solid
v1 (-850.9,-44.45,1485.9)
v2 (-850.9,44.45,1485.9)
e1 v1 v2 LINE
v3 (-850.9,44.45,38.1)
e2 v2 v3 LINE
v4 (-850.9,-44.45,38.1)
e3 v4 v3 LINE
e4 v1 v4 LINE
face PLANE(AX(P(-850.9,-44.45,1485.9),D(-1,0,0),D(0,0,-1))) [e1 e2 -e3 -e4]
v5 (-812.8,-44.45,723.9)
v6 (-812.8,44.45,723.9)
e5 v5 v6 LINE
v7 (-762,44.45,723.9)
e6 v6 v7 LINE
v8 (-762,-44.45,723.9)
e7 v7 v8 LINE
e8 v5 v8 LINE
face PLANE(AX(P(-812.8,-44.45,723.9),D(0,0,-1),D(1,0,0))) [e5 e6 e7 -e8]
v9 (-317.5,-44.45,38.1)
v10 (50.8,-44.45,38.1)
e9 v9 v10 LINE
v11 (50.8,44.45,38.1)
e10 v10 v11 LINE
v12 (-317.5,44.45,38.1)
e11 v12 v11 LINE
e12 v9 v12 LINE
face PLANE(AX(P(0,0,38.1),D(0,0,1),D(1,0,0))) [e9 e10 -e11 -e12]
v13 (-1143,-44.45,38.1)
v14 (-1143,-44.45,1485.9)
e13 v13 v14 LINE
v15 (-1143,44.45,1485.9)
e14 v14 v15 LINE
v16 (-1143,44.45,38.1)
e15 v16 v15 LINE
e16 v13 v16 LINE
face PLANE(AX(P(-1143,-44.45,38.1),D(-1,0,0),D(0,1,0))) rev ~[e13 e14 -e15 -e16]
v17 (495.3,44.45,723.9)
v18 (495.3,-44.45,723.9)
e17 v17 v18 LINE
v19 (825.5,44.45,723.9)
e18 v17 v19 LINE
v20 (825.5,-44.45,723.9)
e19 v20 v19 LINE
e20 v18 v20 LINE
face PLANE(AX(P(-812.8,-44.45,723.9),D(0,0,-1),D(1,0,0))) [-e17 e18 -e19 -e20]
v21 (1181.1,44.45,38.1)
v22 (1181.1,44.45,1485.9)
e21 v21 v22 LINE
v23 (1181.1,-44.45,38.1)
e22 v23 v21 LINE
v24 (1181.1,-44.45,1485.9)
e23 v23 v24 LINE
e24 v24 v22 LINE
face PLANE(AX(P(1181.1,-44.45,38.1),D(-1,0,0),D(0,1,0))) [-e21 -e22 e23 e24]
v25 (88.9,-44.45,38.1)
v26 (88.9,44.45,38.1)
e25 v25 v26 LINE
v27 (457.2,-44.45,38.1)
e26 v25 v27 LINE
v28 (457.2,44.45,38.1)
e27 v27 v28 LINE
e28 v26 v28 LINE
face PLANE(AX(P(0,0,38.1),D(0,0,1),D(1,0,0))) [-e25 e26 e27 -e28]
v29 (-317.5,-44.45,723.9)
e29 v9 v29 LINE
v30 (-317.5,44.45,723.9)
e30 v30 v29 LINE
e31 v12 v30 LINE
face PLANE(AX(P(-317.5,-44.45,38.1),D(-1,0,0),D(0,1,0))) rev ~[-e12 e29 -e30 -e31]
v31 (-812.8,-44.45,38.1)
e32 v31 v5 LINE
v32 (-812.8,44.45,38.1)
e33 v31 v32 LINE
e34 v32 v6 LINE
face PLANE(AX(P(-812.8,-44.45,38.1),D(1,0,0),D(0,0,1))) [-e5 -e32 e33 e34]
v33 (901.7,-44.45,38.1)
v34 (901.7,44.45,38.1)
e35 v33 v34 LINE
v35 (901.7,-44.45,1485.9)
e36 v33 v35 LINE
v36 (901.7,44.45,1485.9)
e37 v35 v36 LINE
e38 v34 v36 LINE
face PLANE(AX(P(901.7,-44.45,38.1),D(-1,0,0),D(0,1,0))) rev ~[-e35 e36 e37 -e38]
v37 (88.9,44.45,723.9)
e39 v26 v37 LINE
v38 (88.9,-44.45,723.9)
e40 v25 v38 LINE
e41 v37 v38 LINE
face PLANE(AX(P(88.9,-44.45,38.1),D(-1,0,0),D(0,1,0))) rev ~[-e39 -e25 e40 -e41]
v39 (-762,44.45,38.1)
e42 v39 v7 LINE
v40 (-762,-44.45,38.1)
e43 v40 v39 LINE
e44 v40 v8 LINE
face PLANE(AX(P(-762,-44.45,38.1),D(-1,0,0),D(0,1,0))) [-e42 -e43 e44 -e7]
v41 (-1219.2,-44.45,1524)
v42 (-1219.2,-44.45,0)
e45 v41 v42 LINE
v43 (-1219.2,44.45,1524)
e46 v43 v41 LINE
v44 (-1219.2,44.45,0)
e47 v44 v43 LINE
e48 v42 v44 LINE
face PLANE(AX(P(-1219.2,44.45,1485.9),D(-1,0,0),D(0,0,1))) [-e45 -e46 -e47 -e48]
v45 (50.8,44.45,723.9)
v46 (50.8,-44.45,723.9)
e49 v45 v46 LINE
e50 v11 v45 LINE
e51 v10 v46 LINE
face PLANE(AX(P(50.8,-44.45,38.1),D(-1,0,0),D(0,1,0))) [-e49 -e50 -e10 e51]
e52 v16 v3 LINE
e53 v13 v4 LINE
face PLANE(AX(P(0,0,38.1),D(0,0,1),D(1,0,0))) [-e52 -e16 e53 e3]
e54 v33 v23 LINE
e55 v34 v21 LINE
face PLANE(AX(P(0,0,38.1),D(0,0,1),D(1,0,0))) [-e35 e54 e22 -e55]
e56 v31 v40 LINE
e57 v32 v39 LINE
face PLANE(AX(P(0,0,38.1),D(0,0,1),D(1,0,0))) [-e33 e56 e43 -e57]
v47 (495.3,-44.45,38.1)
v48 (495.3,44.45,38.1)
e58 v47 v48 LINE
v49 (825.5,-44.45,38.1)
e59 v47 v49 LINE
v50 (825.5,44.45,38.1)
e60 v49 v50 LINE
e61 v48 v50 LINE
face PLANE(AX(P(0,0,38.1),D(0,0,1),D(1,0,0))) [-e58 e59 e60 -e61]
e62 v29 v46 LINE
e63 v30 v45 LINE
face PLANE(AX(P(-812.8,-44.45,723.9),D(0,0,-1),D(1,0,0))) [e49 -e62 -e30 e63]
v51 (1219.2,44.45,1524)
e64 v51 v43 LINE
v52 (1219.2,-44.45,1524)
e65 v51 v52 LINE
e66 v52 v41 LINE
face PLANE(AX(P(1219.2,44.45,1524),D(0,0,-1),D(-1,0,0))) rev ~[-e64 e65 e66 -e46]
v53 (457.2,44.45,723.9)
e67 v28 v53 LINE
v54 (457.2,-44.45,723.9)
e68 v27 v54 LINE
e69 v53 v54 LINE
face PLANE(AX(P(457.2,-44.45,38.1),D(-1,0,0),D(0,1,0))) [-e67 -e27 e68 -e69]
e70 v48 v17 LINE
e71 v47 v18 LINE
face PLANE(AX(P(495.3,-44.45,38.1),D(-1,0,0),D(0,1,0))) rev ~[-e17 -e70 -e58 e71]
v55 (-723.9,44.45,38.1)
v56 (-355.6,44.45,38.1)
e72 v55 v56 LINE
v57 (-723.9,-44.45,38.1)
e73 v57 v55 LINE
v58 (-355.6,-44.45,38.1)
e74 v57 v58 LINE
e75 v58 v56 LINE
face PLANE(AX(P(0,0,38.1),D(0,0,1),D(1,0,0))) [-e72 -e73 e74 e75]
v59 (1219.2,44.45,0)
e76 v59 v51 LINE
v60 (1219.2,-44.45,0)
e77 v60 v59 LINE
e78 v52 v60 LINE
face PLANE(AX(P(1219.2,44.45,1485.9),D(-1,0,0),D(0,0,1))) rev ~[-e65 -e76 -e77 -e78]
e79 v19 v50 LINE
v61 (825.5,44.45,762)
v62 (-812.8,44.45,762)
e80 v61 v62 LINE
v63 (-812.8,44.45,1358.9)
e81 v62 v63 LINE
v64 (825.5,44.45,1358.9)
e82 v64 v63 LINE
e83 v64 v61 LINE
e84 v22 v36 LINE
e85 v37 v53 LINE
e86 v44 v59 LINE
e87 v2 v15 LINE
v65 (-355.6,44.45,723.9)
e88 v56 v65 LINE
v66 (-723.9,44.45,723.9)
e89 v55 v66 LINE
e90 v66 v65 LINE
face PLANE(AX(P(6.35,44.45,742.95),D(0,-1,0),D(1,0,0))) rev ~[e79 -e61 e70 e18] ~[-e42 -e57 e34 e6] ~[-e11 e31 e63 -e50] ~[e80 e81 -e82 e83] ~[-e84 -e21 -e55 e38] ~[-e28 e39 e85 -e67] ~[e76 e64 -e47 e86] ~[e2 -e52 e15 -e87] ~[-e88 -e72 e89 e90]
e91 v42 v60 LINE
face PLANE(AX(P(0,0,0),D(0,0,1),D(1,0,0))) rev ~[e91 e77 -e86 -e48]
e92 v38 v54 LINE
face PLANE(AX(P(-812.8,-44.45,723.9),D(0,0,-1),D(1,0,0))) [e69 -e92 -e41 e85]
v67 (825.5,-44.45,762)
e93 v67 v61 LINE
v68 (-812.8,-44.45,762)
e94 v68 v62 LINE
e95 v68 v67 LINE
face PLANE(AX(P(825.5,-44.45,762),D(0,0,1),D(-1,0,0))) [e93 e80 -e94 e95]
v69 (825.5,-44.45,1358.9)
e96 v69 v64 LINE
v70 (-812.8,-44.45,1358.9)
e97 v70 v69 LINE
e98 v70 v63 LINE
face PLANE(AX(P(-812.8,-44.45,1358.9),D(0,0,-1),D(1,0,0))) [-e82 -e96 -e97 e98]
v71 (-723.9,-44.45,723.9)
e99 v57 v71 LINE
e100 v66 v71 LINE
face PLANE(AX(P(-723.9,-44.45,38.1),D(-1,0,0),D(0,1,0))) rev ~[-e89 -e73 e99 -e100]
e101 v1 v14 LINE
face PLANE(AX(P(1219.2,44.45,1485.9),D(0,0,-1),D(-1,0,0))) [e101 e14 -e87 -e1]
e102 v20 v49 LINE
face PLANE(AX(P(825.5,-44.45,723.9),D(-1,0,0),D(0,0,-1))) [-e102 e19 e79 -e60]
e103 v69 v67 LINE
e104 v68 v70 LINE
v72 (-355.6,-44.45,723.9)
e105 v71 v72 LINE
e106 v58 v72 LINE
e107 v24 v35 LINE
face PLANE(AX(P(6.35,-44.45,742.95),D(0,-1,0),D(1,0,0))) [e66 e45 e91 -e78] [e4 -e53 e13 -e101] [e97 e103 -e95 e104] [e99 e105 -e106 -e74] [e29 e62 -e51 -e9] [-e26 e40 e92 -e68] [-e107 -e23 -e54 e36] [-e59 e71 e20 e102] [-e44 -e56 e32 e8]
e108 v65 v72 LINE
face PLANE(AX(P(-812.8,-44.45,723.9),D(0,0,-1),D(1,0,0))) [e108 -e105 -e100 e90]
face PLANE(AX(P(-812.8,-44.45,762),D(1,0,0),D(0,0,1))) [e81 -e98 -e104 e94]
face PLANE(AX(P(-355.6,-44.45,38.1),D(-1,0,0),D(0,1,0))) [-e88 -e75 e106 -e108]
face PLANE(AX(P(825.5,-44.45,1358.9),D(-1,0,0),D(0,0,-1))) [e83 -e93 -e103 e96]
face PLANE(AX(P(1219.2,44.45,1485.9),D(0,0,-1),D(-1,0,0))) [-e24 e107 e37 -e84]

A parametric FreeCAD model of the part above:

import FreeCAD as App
import Part
import Sketcher
from FreeCAD import Vector
Q = App.Units.Quantity

doc = App.newDocument("Part")
body = doc.addObject("PartDesign::Body", "Body")

# Sketch on XY plane
sketch1 = body.newObject("Sketcher::SketchObject", "Sketch")
sketch1.AttachmentSupport = (doc.getObject("XY_Plane"), [""])
sketch1.MapMode = "FlatFace"
sketch1.addGeometry([
    Part.LineSegment(Vector(-1219.2, 44.45, 0), Vector(-1219.2, -44.45, 0)),
    Part.LineSegment(Vector(-1219.2, -44.45, 0), Vector(1219.2, -44.45, 0)),
    Part.LineSegment(Vector(1219.2, -44.45, 0), Vector(1219.2, 44.45, 0)),
    Part.LineSegment(Vector(1219.2, 44.45, 0), Vector(-1219.2, 44.45, 0)),
], False)
sketch1.addConstraint([
    Sketcher.Constraint("Coincident", 0, 2, 1, 1),
    Sketcher.Constraint("Coincident", 1, 2, 2, 1),
    Sketcher.Constraint("Coincident", 2, 2, 3, 1),
    Sketcher.Constraint("Coincident", 3, 2, 0, 1),
    Sketcher.Constraint("Vertical", 0),
    Sketcher.Constraint("Horizontal", 1),
    Sketcher.Constraint("Vertical", 2),
    Sketcher.Constraint("Horizontal", 3),
    Sketcher.Constraint("Symmetric", 0, 2, 2, 2, -1, 1),
    Sketcher.Constraint("DistanceX", 1, 1, 1, 2, Q("96 in")),
    Sketcher.Constraint("DistanceY", 0, 2, 0, 1, Q("3.5 in")),
])
pad1 = body.newObject("PartDesign::Pad", "Pad")
pad1.Profile = sketch1
pad1.Length = Q("1.5 in")

# Sketch on XY plane
sketch2 = body.newObject("Sketcher::SketchObject", "Sketch001")
sketch2.AttachmentSupport = (doc.getObject("XY_Plane"), [""])
sketch2.MapMode = "FlatFace"
sketch2.AttachmentOffset = App.Placement(Vector(0, 0, 1.5 * 25.4), App.Rotation())
sketch2.addGeometry([
    Part.LineSegment(Vector(1181.1, 44.45, 0), Vector(1181.1, -44.45, 0)),  # 0
    Part.LineSegment(Vector(1181.1, -44.45, 0), Vector(1219.2, -44.45, 0)),  # 1
    Part.LineSegment(Vector(1219.2, -44.45, 0), Vector(1219.2, 44.45, 0)),  # 2
    Part.LineSegment(Vector(1219.2, 44.45, 0), Vector(1181.1, 44.45, 0)),  # 3
    Part.LineSegment(Vector(863.6, 44.45, 0), Vector(863.6, -44.45, 0)),  # 4
    Part.LineSegment(Vector(863.6, -44.45, 0), Vector(901.7, -44.45, 0)),  # 5
    Part.LineSegment(Vector(901.7, -44.45, 0), Vector(901.7, 44.45, 0)),  # 6
    Part.LineSegment(Vector(901.7, 44.45, 0), Vector(863.6, 44.45, 0)),  # 7
    Part.LineSegment(Vector(457.2, 44.45, 0), Vector(457.2, -44.45, 0)),  # 8
    Part.LineSegment(Vector(457.2, -44.45, 0), Vector(495.3, -44.45, 0)),  # 9
    Part.LineSegment(Vector(495.3, -44.45, 0), Vector(495.3, 44.45, 0)),  # 10
    Part.LineSegment(Vector(495.3, 44.45, 0), Vector(457.2, 44.45, 0)),  # 11
    Part.LineSegment(Vector(50.8, 44.45, 0), Vector(50.8, -44.45, 0)),  # 12
    Part.LineSegment(Vector(50.8, -44.45, 0), Vector(88.9, -44.45, 0)),  # 13
    Part.LineSegment(Vector(88.9, -44.45, 0), Vector(88.9, 44.45, 0)),  # 14
    Part.LineSegment(Vector(88.9, 44.45, 0), Vector(50.8, 44.45, 0)),  # 15
    Part.LineSegment(Vector(-355.6, 44.45, 0), Vector(-355.6, -44.45, 0)),  # 16
    Part.LineSegment(Vector(-355.6, -44.45, 0), Vector(-317.5, -44.45, 0)),  # 17
    Part.LineSegment(Vector(-317.5, -44.45, 0), Vector(-317.5, 44.45, 0)),  # 18
    Part.LineSegment(Vector(-317.5, 44.45, 0), Vector(-355.6, 44.45, 0)),  # 19
    Part.LineSegment(Vector(-762, 44.45, 0), Vector(-762, -44.45, 0)),  # 20
    Part.LineSegment(Vector(-762, -44.45, 0), Vector(-723.9, -44.45, 0)),  # 21
    Part.LineSegment(Vector(-723.9, -44.45, 0), Vector(-723.9, 44.45, 0)),  # 22
    Part.LineSegment(Vector(-723.9, 44.45, 0), Vector(-762, 44.45, 0)),  # 23
    Part.LineSegment(Vector(-1219.2, 44.45, 0), Vector(-1219.2, -44.45, 0)),  # 24
    Part.LineSegment(Vector(-1219.2, -44.45, 0), Vector(-1143, -44.45, 0)),  # 25
    Part.LineSegment(Vector(-1143, -44.45, 0), Vector(-1143, 44.45, 0)),  # 26
    Part.LineSegment(Vector(-1143, 44.45, 0), Vector(-1219.2, 44.45, 0)),  # 27
], False)
sketch2.addConstraint([
    Sketcher.Constraint("Coincident", 0, 2, 1, 1),
    Sketcher.Constraint("Coincident", 1, 2, 2, 1),
    Sketcher.Constraint("Coincident", 2, 2, 3, 1),
    Sketcher.Constraint("Coincident", 3, 2, 0, 1),
    Sketcher.Constraint("Coincident", 4, 2, 5, 1),
    Sketcher.Constraint("Coincident", 5, 2, 6, 1),
    Sketcher.Constraint("Coincident", 6, 2, 7, 1),
    Sketcher.Constraint("Coincident", 7, 2, 4, 1),
    Sketcher.Constraint("Coincident", 8, 2, 9, 1),
    Sketcher.Constraint("Coincident", 9, 2, 10, 1),
    Sketcher.Constraint("Coincident", 10, 2, 11, 1),
    Sketcher.Constraint("Coincident", 11, 2, 8, 1),
    Sketcher.Constraint("Coincident", 12, 2, 13, 1),
    Sketcher.Constraint("Coincident", 13, 2, 14, 1),
    Sketcher.Constraint("Coincident", 14, 2, 15, 1),
    Sketcher.Constraint("Coincident", 15, 2, 12, 1),
    Sketcher.Constraint("Coincident", 16, 2, 17, 1),
    Sketcher.Constraint("Coincident", 17, 2, 18, 1),
    Sketcher.Constraint("Coincident", 18, 2, 19, 1),
    Sketcher.Constraint("Coincident", 19, 2, 16, 1),
    Sketcher.Constraint("Coincident", 20, 2, 21, 1),
    Sketcher.Constraint("Coincident", 21, 2, 22, 1),
    Sketcher.Constraint("Coincident", 22, 2, 23, 1),
    Sketcher.Constraint("Coincident", 23, 2, 20, 1),
    Sketcher.Constraint("Coincident", 24, 2, 25, 1),
    Sketcher.Constraint("Coincident", 25, 2, 26, 1),
    Sketcher.Constraint("Coincident", 26, 2, 27, 1),
    Sketcher.Constraint("Coincident", 27, 2, 24, 1),
    Sketcher.Constraint("Vertical", 0),
    Sketcher.Constraint("Horizontal", 1),
    Sketcher.Constraint("Vertical", 2),
    Sketcher.Constraint("Horizontal", 3),
    Sketcher.Constraint("Vertical", 4),
    Sketcher.Constraint("Horizontal", 5),
    Sketcher.Constraint("Vertical", 6),
    Sketcher.Constraint("Horizontal", 7),
    Sketcher.Constraint("Vertical", 8),
    Sketcher.Constraint("Horizontal", 9),
    Sketcher.Constraint("Vertical", 10),
    Sketcher.Constraint("Horizontal", 11),
    Sketcher.Constraint("Vertical", 12),
    Sketcher.Constraint("Horizontal", 13),
    Sketcher.Constraint("Vertical", 14),
    Sketcher.Constraint("Horizontal", 15),
    Sketcher.Constraint("Vertical", 16),
    Sketcher.Constraint("Horizontal", 17),
    Sketcher.Constraint("Vertical", 18),
    Sketcher.Constraint("Horizontal", 19),
    Sketcher.Constraint("Vertical", 20),
    Sketcher.Constraint("Horizontal", 21),
    Sketcher.Constraint("Vertical", 22),
    Sketcher.Constraint("Horizontal", 23),
    Sketcher.Constraint("Vertical", 24),
    Sketcher.Constraint("Horizontal", 25),
    Sketcher.Constraint("Vertical", 26),
    Sketcher.Constraint("Horizontal", 27),
    Sketcher.Constraint("Symmetric", 2, 2, 24, 2, -1, 1),
    Sketcher.Constraint("Horizontal", 1, 2, 4, 2),
    Sketcher.Constraint("Horizontal", 3, 2, 6, 2),
    Sketcher.Constraint("Horizontal", 5, 2, 8, 2),
    Sketcher.Constraint("Horizontal", 7, 2, 10, 2),
    Sketcher.Constraint("Horizontal", 9, 2, 12, 2),
    Sketcher.Constraint("Horizontal", 11, 2, 14, 2),
    Sketcher.Constraint("Horizontal", 13, 2, 16, 2),
    Sketcher.Constraint("Horizontal", 15, 2, 18, 2),
    Sketcher.Constraint("Horizontal", 17, 2, 20, 2),
    Sketcher.Constraint("Horizontal", 19, 2, 22, 2),
    Sketcher.Constraint("Horizontal", 21, 2, 24, 2),
    Sketcher.Constraint("Horizontal", 23, 2, 26, 2),
    Sketcher.Constraint("Equal", 3, 5),
    Sketcher.Constraint("Equal", 7, 9),
    Sketcher.Constraint("Equal", 11, 13),
    Sketcher.Constraint("Equal", 15, 17),
    Sketcher.Constraint("Equal", 19, 21),
    Sketcher.Constraint("DistanceX", 25, 1, 25, 2, Q("3 in")),
    Sketcher.Constraint("DistanceX", 1, 1, 1, 2, Q("1.5 in")),
    Sketcher.Constraint("DistanceY", 0, 2, 0, 1, Q("3.5 in")),
    Sketcher.Constraint("DistanceX", -1, 1, 1, 2, Q("48 in")),
    Sketcher.Constraint("DistanceX", -1, 1, 4, 2, Q("34 in")),
    Sketcher.Constraint("DistanceX", -1, 1, 8, 2, Q("18 in")),
    Sketcher.Constraint("DistanceX", -1, 1, 12, 2, Q("2 in")),
    Sketcher.Constraint("DistanceX", 16, 2, -1, 1, Q("14 in")),
    Sketcher.Constraint("DistanceX", 20, 2, -1, 1, Q("30 in")),
])
pad2 = body.newObject("PartDesign::Pad", "Pad001")
pad2.Profile = sketch2
pad2.Length = Q("57 in")

# Sketch on XZ plane
sketch3 = body.newObject("Sketcher::SketchObject", "Sketch002")
sketch3.AttachmentSupport = (doc.getObject("XZ_Plane"), [""])
sketch3.MapMode = "FlatFace"
sketch3.AttachmentOffset = App.Placement(Vector(0, 0, -1.75 * 25.4), App.Rotation())
sketch3.addGeometry([
    Part.LineSegment(Vector(1219.2, 1524, 0), Vector(1219.2, 1485.9, 0)),
    Part.LineSegment(Vector(1219.2, 1485.9, 0), Vector(-1219.2, 1485.9, 0)),
    Part.LineSegment(Vector(-1219.2, 1485.9, 0), Vector(-1219.2, 1524, 0)),
    Part.LineSegment(Vector(-1219.2, 1524, 0), Vector(1219.2, 1524, 0)),
], False)
sketch3.addConstraint([
    Sketcher.Constraint("Coincident", 0, 2, 1, 1),
    Sketcher.Constraint("Coincident", 1, 2, 2, 1),
    Sketcher.Constraint("Coincident", 2, 2, 3, 1),
    Sketcher.Constraint("Coincident", 3, 2, 0, 1),
    Sketcher.Constraint("Vertical", 0),
    Sketcher.Constraint("Horizontal", 1),
    Sketcher.Constraint("Vertical", 2),
    Sketcher.Constraint("Horizontal", 3),
    Sketcher.Constraint("DistanceX", 1, 2, 1, 1, Q("96 in")),
    Sketcher.Constraint("DistanceY", 0, 2, 0, 1, Q("1.5 in")),
    Sketcher.Constraint("DistanceX", -1, 1, 0, 2, Q("48 in")),
    Sketcher.Constraint("DistanceY", -1, 1, 2, 2, Q("60 in")),
])
pad3 = body.newObject("PartDesign::Pad", "Pad002")
pad3.Profile = sketch3
pad3.Length = Q("3.5 in")

# Sketch on XZ plane
sketch4 = body.newObject("Sketcher::SketchObject", "Sketch003")
sketch4.AttachmentSupport = (doc.getObject("XZ_Plane"), [""])
sketch4.MapMode = "FlatFace"
sketch4.AttachmentOffset = App.Placement(Vector(0, 0, 1.75 * 25.4), App.Rotation())
sketch4.addGeometry([
    Part.LineSegment(Vector(-850.9, 1485.9, 0), Vector(-850.9, 38.1, 0)),  # 0
    Part.LineSegment(Vector(-850.9, 38.1, 0), Vector(-812.8, 38.1, 0)),  # 1
    Part.LineSegment(Vector(-812.8, 38.1, 0), Vector(-812.8, 723.9, 0)),  # 2
    Part.LineSegment(Vector(-812.8, 723.9, 0), Vector(825.5, 723.9, 0)),  # 3
    Part.LineSegment(Vector(825.5, 723.9, 0), Vector(825.5, 38.1, 0)),  # 4
    Part.LineSegment(Vector(825.5, 38.1, 0), Vector(863.6, 38.1, 0)),  # 5
    Part.LineSegment(Vector(863.6, 38.1, 0), Vector(863.6, 1485.9, 0)),  # 6
    Part.LineSegment(Vector(863.6, 1485.9, 0), Vector(-850.9, 1485.9, 0)),  # 7
    Part.LineSegment(Vector(825.5, 762, 0), Vector(-812.8, 762, 0)),  # 8
    Part.LineSegment(Vector(-812.8, 762, 0), Vector(-812.8, 1358.9, 0)),  # 9
    Part.LineSegment(Vector(-812.8, 1358.9, 0), Vector(825.5, 1358.9, 0)),  # 10
    Part.LineSegment(Vector(825.5, 1358.9, 0), Vector(825.5, 762, 0)),  # 11
], False)
sketch4.addConstraint([
    Sketcher.Constraint("Coincident", 0, 2, 1, 1),
    Sketcher.Constraint("Coincident", 1, 2, 2, 1),
    Sketcher.Constraint("Coincident", 2, 2, 3, 1),
    Sketcher.Constraint("Coincident", 3, 2, 4, 1),
    Sketcher.Constraint("Coincident", 4, 2, 5, 1),
    Sketcher.Constraint("Coincident", 5, 2, 6, 1),
    Sketcher.Constraint("Coincident", 6, 2, 7, 1),
    Sketcher.Constraint("Coincident", 7, 2, 0, 1),
    Sketcher.Constraint("Coincident", 8, 2, 9, 1),
    Sketcher.Constraint("Coincident", 9, 2, 10, 1),
    Sketcher.Constraint("Coincident", 10, 2, 11, 1),
    Sketcher.Constraint("Coincident", 11, 2, 8, 1),
    Sketcher.Constraint("Vertical", 0),
    Sketcher.Constraint("Horizontal", 1),
    Sketcher.Constraint("Vertical", 2),
    Sketcher.Constraint("Horizontal", 3),
    Sketcher.Constraint("Vertical", 4),
    Sketcher.Constraint("Horizontal", 5),
    Sketcher.Constraint("Vertical", 6),
    Sketcher.Constraint("Horizontal", 7),
    Sketcher.Constraint("Horizontal", 8),
    Sketcher.Constraint("Vertical", 9),
    Sketcher.Constraint("Horizontal", 10),
    Sketcher.Constraint("Vertical", 11),
    Sketcher.Constraint("Horizontal", 1, 2, 4, 2),
    Sketcher.Constraint("Vertical", 2, 2, 8, 2),
    Sketcher.Constraint("Vertical", 4, 2, 10, 2),
    Sketcher.Constraint("Equal", 1, 5),
    Sketcher.Constraint("DistanceY", 0, 2, 0, 1, Q("57 in")),
    Sketcher.Constraint("DistanceY", 2, 1, 2, 2, Q("27 in")),
    Sketcher.Constraint("DistanceX", 1, 1, 1, 2, Q("1.5 in")),
    Sketcher.Constraint("DistanceX", 3, 1, 3, 2, Q("64.5 in")),
    Sketcher.Constraint("DistanceY", 9, 1, 9, 2, Q("23.5 in")),
    Sketcher.Constraint("DistanceX", 1, 2, -1, 1, Q("32 in")),
    Sketcher.Constraint("DistanceY", -1, 1, 8, 2, Q("30 in")),
    Sketcher.Constraint("DistanceY", 9, 2, 7, 2, Q("5 in")),
])
pad4 = body.newObject("PartDesign::Pad", "Pad003")
pad4.Profile = sketch4
pad4.Length = Q("3.5 in")
pad4.Reversed = True

# Sketch on XZ plane
sketch5 = body.newObject("Sketcher::SketchObject", "Sketch004")
sketch5.AttachmentSupport = (doc.getObject("XZ_Plane"), [""])
sketch5.MapMode = "FlatFace"
sketch5.AttachmentOffset = App.Placement(Vector(0, 0, 1.75 * 25.4), App.Rotation())
sketch5.addGeometry([
    Part.LineSegment(Vector(-812.8, 1358.9, 0), Vector(-812.8, 762, 0)),
    Part.LineSegment(Vector(-812.8, 762, 0), Vector(825.5, 762, 0)),
    Part.LineSegment(Vector(825.5, 762, 0), Vector(825.5, 1358.9, 0)),
    Part.LineSegment(Vector(825.5, 1358.9, 0), Vector(-812.8, 1358.9, 0)),
], False)
sketch5.addConstraint([
    Sketcher.Constraint("Coincident", 0, 2, 1, 1),
    Sketcher.Constraint("Coincident", 1, 2, 2, 1),
    Sketcher.Constraint("Coincident", 2, 2, 3, 1),
    Sketcher.Constraint("Coincident", 3, 2, 0, 1),
    Sketcher.Constraint("Vertical", 0),
    Sketcher.Constraint("Horizontal", 1),
    Sketcher.Constraint("Vertical", 2),
    Sketcher.Constraint("Horizontal", 3),
    Sketcher.Constraint("DistanceX", 1, 1, 1, 2, Q("64.5 in")),
    Sketcher.Constraint("DistanceY", 0, 2, 0, 1, Q("23.5 in")),
    Sketcher.Constraint("DistanceX", 0, 2, -1, 1, Q("32 in")),
    Sketcher.Constraint("DistanceY", -1, 1, 0, 2, Q("30 in")),
])
pocket1 = body.newObject("PartDesign::Pocket", "Pocket")
pocket1.Profile = sketch5
pocket1.Length = Q("8.5 in")

doc.recompute()
